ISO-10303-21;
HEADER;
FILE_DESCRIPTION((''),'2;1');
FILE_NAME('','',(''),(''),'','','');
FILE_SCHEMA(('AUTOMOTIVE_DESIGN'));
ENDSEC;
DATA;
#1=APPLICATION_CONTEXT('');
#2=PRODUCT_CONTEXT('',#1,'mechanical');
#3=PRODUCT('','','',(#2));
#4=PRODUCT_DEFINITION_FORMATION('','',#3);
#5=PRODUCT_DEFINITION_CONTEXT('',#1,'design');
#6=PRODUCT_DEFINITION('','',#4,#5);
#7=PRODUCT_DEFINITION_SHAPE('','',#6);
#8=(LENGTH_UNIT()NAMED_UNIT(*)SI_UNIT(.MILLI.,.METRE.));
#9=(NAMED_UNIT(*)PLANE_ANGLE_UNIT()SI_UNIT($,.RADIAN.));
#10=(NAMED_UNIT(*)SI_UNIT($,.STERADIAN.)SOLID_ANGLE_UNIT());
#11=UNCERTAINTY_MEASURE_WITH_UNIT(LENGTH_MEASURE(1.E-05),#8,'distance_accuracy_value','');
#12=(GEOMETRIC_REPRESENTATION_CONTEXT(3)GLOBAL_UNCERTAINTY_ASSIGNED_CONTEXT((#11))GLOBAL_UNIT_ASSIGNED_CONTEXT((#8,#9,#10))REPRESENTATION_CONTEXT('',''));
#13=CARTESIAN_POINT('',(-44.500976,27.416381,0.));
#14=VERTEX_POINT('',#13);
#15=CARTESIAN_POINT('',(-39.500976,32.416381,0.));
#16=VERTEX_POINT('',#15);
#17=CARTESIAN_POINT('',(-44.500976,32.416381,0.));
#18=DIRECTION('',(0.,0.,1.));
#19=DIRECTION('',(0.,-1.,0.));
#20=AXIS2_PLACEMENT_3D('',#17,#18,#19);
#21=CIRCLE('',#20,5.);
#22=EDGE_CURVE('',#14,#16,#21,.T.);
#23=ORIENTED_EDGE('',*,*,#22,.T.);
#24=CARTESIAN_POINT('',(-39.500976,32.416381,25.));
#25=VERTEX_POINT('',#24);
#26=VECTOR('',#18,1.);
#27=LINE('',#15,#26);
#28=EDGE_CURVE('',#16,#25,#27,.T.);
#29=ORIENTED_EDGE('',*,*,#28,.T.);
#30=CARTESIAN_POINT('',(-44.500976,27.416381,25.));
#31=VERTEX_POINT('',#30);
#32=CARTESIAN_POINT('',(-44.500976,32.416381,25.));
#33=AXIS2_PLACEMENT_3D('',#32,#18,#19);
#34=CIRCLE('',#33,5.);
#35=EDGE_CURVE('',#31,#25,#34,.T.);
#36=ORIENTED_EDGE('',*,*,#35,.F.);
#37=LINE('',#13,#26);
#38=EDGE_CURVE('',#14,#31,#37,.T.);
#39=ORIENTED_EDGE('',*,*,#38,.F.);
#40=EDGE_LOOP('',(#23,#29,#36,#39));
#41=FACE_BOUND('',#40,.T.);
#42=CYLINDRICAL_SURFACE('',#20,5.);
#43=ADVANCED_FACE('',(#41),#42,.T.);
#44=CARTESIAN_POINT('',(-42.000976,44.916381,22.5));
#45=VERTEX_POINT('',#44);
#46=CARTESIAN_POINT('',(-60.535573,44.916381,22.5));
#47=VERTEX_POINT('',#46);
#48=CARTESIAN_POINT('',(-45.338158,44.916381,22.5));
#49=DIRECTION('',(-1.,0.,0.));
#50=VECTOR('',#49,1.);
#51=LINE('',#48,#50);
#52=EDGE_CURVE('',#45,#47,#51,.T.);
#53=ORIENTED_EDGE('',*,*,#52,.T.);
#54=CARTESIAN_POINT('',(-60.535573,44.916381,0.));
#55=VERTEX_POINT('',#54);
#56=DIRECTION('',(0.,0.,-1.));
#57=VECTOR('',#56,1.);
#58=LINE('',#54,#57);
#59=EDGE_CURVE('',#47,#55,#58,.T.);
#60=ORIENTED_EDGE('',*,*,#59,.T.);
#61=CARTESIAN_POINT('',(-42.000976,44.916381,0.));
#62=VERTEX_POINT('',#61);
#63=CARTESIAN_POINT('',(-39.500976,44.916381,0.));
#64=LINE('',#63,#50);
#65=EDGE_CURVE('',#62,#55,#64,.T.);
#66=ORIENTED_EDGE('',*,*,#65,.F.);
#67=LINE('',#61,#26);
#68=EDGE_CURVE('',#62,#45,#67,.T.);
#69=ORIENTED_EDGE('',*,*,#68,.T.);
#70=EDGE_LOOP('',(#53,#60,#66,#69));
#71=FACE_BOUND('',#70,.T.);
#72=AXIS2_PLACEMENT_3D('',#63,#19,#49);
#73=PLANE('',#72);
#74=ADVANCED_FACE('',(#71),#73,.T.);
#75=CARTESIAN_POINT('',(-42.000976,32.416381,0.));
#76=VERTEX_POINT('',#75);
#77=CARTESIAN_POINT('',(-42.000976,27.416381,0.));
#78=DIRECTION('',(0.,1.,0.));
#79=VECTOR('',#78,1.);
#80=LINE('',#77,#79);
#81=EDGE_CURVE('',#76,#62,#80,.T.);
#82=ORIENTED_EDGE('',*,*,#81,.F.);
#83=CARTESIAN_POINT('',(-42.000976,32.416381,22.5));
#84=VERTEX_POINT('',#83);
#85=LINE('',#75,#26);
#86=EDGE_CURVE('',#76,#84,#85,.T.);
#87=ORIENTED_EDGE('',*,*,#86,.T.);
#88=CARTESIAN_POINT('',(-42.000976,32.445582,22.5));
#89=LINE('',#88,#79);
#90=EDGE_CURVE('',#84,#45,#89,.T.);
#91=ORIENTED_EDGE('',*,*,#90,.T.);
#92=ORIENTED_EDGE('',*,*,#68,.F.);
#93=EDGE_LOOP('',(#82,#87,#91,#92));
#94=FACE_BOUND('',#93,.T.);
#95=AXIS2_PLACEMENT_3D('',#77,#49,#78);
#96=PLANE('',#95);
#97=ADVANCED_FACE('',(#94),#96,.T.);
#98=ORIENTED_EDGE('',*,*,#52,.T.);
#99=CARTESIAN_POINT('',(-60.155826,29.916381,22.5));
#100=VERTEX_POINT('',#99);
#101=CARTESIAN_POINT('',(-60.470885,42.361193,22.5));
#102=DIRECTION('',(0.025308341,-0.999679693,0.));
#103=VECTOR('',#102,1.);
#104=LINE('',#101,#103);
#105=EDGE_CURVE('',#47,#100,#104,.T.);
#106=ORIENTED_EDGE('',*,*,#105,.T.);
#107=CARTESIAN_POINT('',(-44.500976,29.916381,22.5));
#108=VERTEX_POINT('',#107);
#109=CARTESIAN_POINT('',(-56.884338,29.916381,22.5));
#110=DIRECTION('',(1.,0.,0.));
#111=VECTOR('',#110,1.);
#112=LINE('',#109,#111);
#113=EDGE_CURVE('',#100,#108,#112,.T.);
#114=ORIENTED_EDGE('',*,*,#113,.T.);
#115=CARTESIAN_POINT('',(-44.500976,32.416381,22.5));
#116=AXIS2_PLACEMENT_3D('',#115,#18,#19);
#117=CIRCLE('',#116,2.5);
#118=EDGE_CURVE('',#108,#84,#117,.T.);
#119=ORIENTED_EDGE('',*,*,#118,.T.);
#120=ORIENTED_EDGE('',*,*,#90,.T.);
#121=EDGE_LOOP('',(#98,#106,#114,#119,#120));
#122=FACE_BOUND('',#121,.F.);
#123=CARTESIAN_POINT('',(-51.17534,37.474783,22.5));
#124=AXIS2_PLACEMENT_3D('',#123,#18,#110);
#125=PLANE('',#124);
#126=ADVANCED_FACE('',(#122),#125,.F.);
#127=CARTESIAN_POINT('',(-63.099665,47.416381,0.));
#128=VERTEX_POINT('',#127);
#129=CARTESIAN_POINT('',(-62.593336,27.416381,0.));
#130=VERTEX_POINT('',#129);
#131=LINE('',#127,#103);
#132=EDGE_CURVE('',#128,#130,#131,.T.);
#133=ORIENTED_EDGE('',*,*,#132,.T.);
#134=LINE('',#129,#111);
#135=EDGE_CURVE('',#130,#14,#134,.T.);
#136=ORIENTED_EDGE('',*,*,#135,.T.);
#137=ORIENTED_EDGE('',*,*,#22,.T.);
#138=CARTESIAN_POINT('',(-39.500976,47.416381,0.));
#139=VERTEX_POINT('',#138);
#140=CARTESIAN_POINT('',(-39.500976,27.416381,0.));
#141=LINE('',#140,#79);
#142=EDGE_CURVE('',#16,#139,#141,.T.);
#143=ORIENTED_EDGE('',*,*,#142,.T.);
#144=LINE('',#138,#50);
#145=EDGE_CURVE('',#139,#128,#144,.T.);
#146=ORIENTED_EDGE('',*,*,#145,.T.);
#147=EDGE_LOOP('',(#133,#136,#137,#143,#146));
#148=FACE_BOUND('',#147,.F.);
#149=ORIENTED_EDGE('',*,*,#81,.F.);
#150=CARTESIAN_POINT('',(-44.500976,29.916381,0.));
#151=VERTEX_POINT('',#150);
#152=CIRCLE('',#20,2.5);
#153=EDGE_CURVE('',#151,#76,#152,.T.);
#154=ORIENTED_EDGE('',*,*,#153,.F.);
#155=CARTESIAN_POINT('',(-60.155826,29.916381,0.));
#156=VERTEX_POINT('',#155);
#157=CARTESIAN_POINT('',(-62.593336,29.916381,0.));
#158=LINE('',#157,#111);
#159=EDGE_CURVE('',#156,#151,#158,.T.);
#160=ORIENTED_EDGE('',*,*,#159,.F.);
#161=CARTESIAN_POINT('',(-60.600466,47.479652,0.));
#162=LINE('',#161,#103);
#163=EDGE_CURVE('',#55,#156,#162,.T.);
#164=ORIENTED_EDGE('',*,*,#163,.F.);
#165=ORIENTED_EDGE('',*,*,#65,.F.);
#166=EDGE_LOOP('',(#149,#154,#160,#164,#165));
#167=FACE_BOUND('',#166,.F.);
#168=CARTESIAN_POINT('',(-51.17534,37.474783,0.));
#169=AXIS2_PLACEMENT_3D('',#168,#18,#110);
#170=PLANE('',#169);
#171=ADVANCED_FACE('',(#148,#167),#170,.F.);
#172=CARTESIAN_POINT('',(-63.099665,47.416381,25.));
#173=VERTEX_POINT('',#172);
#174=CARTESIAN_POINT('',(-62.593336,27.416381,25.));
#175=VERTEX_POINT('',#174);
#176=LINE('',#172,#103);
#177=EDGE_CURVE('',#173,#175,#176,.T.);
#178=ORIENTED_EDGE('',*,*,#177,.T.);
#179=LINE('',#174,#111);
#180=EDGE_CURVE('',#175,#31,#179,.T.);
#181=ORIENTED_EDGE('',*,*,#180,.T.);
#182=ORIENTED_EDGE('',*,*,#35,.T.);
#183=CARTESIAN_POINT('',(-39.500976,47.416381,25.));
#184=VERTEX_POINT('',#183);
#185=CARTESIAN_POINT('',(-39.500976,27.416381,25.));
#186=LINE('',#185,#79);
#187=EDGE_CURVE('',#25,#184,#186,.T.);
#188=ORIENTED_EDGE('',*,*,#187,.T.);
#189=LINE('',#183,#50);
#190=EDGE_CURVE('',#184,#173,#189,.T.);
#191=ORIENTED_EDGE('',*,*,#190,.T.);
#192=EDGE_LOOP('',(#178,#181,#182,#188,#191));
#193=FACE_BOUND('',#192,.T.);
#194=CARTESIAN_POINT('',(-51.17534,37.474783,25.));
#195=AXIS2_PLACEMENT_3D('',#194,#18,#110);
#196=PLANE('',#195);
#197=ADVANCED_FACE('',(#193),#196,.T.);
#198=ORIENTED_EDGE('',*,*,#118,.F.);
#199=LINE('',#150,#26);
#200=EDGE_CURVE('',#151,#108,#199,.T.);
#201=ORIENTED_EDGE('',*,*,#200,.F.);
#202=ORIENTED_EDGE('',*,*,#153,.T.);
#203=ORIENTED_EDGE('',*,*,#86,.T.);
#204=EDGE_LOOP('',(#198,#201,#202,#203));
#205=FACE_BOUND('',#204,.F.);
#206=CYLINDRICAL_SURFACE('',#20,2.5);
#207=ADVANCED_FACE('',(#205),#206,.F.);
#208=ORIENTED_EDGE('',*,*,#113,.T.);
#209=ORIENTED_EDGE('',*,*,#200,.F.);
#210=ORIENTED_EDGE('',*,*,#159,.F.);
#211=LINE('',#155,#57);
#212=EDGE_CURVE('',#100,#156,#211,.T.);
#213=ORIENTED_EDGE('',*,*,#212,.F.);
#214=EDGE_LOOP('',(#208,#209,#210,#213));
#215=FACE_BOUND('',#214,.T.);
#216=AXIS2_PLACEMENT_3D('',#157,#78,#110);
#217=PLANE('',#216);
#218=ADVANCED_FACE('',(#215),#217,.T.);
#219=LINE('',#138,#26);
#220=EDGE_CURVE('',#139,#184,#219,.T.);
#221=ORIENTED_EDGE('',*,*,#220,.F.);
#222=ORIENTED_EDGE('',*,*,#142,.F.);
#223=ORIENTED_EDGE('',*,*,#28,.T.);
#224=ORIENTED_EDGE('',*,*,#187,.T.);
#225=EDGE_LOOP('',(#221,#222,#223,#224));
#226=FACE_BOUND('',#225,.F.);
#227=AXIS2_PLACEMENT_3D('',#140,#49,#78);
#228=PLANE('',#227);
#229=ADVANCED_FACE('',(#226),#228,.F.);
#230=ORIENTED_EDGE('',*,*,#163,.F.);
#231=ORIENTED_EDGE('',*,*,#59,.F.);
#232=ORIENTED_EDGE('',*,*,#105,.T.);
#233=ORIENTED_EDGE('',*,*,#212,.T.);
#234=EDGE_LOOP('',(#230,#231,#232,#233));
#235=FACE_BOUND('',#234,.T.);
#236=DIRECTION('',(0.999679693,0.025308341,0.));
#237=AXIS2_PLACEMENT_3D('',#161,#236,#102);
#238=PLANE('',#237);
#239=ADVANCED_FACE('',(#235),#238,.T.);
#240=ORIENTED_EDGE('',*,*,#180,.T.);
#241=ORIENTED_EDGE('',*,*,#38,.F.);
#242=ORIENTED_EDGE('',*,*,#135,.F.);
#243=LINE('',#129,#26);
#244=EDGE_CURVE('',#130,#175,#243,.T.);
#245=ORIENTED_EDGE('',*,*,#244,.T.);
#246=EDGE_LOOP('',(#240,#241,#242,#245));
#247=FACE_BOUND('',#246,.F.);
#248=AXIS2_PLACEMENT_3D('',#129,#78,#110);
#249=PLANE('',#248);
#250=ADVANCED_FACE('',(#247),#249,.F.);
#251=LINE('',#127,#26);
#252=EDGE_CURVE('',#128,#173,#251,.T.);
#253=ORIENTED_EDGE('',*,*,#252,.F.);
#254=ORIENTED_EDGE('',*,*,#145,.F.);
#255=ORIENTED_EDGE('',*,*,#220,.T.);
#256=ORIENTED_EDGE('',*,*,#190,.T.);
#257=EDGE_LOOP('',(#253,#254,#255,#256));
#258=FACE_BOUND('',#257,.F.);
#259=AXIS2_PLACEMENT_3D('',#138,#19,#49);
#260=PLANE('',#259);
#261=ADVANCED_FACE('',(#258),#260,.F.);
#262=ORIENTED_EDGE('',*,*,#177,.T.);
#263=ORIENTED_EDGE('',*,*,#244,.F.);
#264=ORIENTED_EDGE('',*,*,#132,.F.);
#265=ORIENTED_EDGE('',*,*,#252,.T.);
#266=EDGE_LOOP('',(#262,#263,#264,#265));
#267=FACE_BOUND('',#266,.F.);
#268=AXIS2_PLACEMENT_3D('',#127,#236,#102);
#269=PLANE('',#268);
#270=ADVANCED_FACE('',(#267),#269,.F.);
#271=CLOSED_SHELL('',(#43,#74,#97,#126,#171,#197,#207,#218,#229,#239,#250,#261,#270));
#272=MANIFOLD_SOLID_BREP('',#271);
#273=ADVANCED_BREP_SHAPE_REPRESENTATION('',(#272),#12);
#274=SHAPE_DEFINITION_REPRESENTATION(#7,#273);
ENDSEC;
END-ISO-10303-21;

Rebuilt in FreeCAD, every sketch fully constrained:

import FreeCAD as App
import Part
import Sketcher
from FreeCAD import Vector


def edges_at(feature, points):
    """Names of the edges that pass closest to the given points."""
    edges = feature.Shape.Edges
    near = lambda p: min(range(len(edges)), key=lambda i: edges[i].distToShape(Part.Vertex(*p))[0])
    return sorted({f"Edge{near(p) + 1}" for p in points})


def faces_at(feature, points):
    """Names of the faces that lie closest to the given points."""
    faces = feature.Shape.Faces
    near = lambda p: min(range(len(faces)), key=lambda i: faces[i].distToShape(Part.Vertex(*p))[0])
    return sorted({f"Face{near(p) + 1}" for p in points})

doc = App.newDocument("Part")
body = doc.addObject("PartDesign::Body", "Body")

# Sketch on XY plane
sketch1 = doc.addObject("Sketcher::SketchObject", "Sketch")
body.addObject(sketch1)
sketch1.AttachmentSupport = (doc.XY_Plane, [""])
sketch1.MapMode = "FlatFace"
sketch1.addGeometry([
    Part.LineSegment(Vector(-39.500976, 47.416381, 0), Vector(-63.099665, 47.416381, 0)),
    Part.LineSegment(Vector(-63.099665, 47.416381, 0), Vector(-62.593336, 27.416381, 0)),
    Part.LineSegment(Vector(-62.593336, 27.416381, 0), Vector(-39.500976, 27.416381, 0)),
    Part.LineSegment(Vector(-39.500976, 27.416381, 0), Vector(-39.500976, 47.416381, 0)),
], False)
sketch1.addConstraint([
    Sketcher.Constraint("Coincident", 0, 2, 1, 1),
    Sketcher.Constraint("Coincident", 1, 2, 2, 1),
    Sketcher.Constraint("Coincident", 2, 2, 3, 1),
    Sketcher.Constraint("Coincident", 3, 2, 0, 1),
    Sketcher.Constraint("Horizontal", 0),
    Sketcher.Constraint("Horizontal", 2),
    Sketcher.Constraint("Vertical", 3),
    Sketcher.Constraint("DistanceY", 3, 1, 3, 2, 20.0),
    Sketcher.Constraint("DistanceX", 0, 2, 0, 1, 23.598689),
    Sketcher.Constraint("DistanceX", 2, 1, 2, 2, 23.09236),
    Sketcher.Constraint("DistanceY", -1, 1, 0, 2, 47.416381),
    Sketcher.Constraint("DistanceX", 0, 2, -1, 1, 63.099665),
])
pad1 = doc.addObject("PartDesign::Pad", "Pad")
body.addObject(pad1)
pad1.Profile = sketch1
pad1.Length = 25
doc.recompute()

fillet = doc.addObject("PartDesign::Fillet", "Fillet")
body.addObject(fillet)
fillet.Base = (pad1, edges_at(pad1, [(-39.501, 27.416, 12.5)]))
fillet.Radius = 5
doc.recompute()

thickness = doc.addObject("PartDesign::Thickness", "Thickness")
body.addObject(thickness)
thickness.Base = (fillet, faces_at(fillet, [(-51.3, 37.416, 0)]))
thickness.Value = 2.5
thickness.Reversed = True
thickness.Join = "Arc"

doc.recompute()
